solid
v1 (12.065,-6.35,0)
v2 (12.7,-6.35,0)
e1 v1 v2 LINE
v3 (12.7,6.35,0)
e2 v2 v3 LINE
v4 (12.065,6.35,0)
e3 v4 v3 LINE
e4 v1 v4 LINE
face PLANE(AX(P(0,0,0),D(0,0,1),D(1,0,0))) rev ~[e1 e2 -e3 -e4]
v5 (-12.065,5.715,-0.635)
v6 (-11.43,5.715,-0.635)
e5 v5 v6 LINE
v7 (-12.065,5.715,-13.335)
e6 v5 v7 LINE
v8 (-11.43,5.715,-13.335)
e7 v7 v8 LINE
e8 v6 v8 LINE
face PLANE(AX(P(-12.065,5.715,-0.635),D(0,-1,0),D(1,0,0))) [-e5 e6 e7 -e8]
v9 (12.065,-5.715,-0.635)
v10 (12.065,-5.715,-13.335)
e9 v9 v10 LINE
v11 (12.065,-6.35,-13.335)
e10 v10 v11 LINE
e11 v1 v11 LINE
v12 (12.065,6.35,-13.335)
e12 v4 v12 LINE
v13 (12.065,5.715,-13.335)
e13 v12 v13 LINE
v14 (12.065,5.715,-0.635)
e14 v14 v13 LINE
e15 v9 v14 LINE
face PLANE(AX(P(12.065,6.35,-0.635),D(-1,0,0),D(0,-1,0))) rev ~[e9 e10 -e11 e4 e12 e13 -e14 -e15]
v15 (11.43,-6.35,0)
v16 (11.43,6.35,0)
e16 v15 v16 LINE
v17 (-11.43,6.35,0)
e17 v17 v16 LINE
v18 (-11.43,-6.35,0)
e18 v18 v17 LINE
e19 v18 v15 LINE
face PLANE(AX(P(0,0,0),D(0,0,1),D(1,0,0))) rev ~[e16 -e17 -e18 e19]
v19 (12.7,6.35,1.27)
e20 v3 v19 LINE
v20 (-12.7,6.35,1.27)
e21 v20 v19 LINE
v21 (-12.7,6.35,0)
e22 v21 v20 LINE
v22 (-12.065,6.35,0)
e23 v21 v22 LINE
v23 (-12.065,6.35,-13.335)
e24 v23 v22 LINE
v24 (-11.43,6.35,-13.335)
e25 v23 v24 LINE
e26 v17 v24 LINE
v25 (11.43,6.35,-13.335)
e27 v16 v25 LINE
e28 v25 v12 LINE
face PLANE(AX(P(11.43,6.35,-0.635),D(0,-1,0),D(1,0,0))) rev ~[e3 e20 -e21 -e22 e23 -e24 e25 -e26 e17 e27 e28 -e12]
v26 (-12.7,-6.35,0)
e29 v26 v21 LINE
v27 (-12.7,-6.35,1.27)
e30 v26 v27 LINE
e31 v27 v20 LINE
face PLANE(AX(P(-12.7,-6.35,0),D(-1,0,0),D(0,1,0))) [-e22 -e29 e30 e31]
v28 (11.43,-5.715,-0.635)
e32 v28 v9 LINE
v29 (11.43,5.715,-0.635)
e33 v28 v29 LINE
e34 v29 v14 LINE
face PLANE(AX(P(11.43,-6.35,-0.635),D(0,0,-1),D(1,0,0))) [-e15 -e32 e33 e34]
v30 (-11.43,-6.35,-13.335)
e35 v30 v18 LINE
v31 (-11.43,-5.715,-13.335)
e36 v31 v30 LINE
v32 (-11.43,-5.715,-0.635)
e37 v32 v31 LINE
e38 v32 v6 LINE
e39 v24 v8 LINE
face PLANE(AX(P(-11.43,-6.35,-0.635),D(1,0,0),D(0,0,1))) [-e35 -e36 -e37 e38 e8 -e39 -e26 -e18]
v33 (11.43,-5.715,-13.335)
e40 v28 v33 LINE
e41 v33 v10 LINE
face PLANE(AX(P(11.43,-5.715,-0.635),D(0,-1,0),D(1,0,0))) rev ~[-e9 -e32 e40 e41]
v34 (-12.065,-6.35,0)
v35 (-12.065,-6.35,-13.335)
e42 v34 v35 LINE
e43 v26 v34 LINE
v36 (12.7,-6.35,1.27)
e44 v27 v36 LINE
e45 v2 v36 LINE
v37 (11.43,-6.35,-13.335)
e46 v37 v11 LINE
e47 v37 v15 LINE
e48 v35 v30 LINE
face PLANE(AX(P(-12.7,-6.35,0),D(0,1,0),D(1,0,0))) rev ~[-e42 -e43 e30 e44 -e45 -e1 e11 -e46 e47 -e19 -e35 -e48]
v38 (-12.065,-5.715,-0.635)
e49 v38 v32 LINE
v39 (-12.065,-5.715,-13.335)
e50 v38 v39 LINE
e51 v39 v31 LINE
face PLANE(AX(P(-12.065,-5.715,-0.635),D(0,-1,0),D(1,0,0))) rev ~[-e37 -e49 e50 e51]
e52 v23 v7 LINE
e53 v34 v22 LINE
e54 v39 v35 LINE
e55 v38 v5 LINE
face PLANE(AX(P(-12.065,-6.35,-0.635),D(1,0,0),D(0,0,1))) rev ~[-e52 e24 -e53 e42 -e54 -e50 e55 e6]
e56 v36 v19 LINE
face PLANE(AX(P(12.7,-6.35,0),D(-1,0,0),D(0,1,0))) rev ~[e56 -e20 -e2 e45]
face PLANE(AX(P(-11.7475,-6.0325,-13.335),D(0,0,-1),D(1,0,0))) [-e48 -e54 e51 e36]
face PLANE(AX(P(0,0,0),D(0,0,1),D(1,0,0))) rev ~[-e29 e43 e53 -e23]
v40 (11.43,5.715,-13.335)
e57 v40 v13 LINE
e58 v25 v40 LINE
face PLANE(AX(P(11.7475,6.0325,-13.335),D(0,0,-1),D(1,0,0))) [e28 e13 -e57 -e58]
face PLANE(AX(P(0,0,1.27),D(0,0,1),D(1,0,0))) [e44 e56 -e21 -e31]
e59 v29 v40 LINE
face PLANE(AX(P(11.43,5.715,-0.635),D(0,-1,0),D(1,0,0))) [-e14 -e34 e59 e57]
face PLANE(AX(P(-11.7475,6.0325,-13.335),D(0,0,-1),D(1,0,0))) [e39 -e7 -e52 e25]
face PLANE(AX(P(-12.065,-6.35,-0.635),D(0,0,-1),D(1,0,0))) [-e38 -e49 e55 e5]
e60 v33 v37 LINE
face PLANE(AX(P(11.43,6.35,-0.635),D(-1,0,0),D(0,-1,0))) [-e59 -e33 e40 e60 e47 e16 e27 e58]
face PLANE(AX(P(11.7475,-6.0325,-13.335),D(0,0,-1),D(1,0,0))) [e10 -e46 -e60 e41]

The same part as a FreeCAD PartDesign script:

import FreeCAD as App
import Part
import Sketcher

V = App.Vector
Q = App.Units.Quantity

doc = App.newDocument("Part")
body = doc.addObject("PartDesign::Body", "Body")

sketch1 = body.newObject("Sketcher::SketchObject", "Sketch")
sketch1.AttachmentSupport = (doc.getObject("XY_Plane"), [""])
sketch1.MapMode = "FlatFace"
sketch1.addGeometry([
    Part.LineSegment(V(-13, 6, 0), V(-13, -6, 0)),
    Part.LineSegment(V(-13, -6, 0), V(13, -6, 0)),
    Part.LineSegment(V(13, -6, 0), V(13, 6, 0)),
    Part.LineSegment(V(13, 6, 0), V(-13, 6, 0)),
], False)
sketch1.addConstraint([
    Sketcher.Constraint("Coincident", 0, 2, 1, 1),
    Sketcher.Constraint("Coincident", 1, 2, 2, 1),
    Sketcher.Constraint("Coincident", 2, 2, 3, 1),
    Sketcher.Constraint("Coincident", 3, 2, 0, 1),
    Sketcher.Constraint("Vertical", 0),
    Sketcher.Constraint("Horizontal", 1),
    Sketcher.Constraint("Vertical", 2),
    Sketcher.Constraint("Horizontal", 3),
    Sketcher.Constraint("Symmetric", 0, 2, 2, 2, -1, 1),
    Sketcher.Constraint("DistanceX", 1, 1, 1, 2, Q("1 in")),
    Sketcher.Constraint("DistanceY", 0, 2, 0, 1, Q("0.5 in")),
])
pad1 = body.newObject("PartDesign::Pad", "Pad")
pad1.Profile = sketch1
pad1.Length = Q("0.05 in")

sketch2 = body.newObject("Sketcher::SketchObject", "Sketch001")
sketch2.AttachmentSupport = (doc.getObject("XZ_Plane"), [""])
sketch2.MapMode = "FlatFace"
sketch2.AttachmentOffset = App.Placement(V(0, 0, 0.25 * 25.4), App.Rotation())
sketch2.addGeometry([
    Part.LineSegment(V(-12.1, 0, 0), V(-12.1, -0.6, 0)),
    Part.LineSegment(V(-12.1, -0.6, 0), V(-11.4, -0.6, 0)),
    Part.LineSegment(V(-11.4, -0.6, 0), V(-11.4, 0, 0)),
    Part.LineSegment(V(-11.4, 0, 0), V(-12.1, 0, 0)),
    Part.LineSegment(V(11.4, 0, 0), V(11.4, -0.6, 0)),
    Part.LineSegment(V(11.4, -0.6, 0), V(12.1, -0.6, 0)),
    Part.LineSegment(V(12.1, -0.6, 0), V(12.1, 0, 0)),
    Part.LineSegment(V(12.1, 0, 0), V(11.4, 0, 0)),
], False)
sketch2.addConstraint([
    Sketcher.Constraint("Coincident", 0, 2, 1, 1),
    Sketcher.Constraint("Coincident", 1, 2, 2, 1),
    Sketcher.Constraint("Coincident", 2, 2, 3, 1),
    Sketcher.Constraint("Coincident", 3, 2, 0, 1),
    Sketcher.Constraint("Coincident", 4, 2, 5, 1),
    Sketcher.Constraint("Coincident", 5, 2, 6, 1),
    Sketcher.Constraint("Coincident", 6, 2, 7, 1),
    Sketcher.Constraint("Coincident", 7, 2, 4, 1),
    Sketcher.Constraint("Vertical", 0),
    Sketcher.Constraint("Horizontal", 1),
    Sketcher.Constraint("Vertical", 2),
    Sketcher.Constraint("Horizontal", 3),
    Sketcher.Constraint("Vertical", 4),
    Sketcher.Constraint("Horizontal", 5),
    Sketcher.Constraint("Vertical", 6),
    Sketcher.Constraint("Horizontal", 7),
    Sketcher.Constraint("Symmetric", 3, 2, 6, 2, -1, 1),
    Sketcher.Constraint("Symmetric", 1, 2, 4, 2, -2),
    Sketcher.Constraint("PointOnObject", 2, 2, -1),
    Sketcher.Constraint("Equal", 7, 0),
    Sketcher.Constraint("DistanceX", 1, 2, 4, 2, Q("0.9 in")),
    Sketcher.Constraint("DistanceX", 1, 1, 1, 2, Q("0.025 in")),
])
pad2 = body.newObject("PartDesign::Pad", "Pad001")
pad2.Profile = sketch2
pad2.Length = Q("0.5 in")
pad2.Reversed = True

sketch3 = body.newObject("Sketcher::SketchObject", "Sketch002")
sketch3.AttachmentSupport = (doc.getObject("XY_Plane"), [""])
sketch3.MapMode = "FlatFace"
sketch3.AttachmentOffset = App.Placement(V(0, 0, -0.025 * 25.4), App.Rotation())
sketch3.addGeometry([
    Part.LineSegment(V(11.4, 5.7, 0), V(11.4, 6.3, 0)),
    Part.LineSegment(V(11.4, 6.3, 0), V(12.1, 6.3, 0)),
    Part.LineSegment(V(12.1, 6.3, 0), V(12.1, 5.7, 0)),
    Part.LineSegment(V(12.1, 5.7, 0), V(11.4, 5.7, 0)),
    Part.LineSegment(V(11.4, -6.3, 0), V(11.4, -5.7, 0)),
    Part.LineSegment(V(11.4, -5.7, 0), V(12.1, -5.7, 0)),
    Part.LineSegment(V(12.1, -5.7, 0), V(12.1, -6.3, 0)),
    Part.LineSegment(V(12.1, -6.3, 0), V(11.4, -6.3, 0)),
    Part.LineSegment(V(-12.1, 5.7, 0), V(-12.1, 6.3, 0)),
    Part.LineSegment(V(-12.1, 6.3, 0), V(-11.4, 6.3, 0)),
    Part.LineSegment(V(-11.4, 6.3, 0), V(-11.4, 5.7, 0)),
    Part.LineSegment(V(-11.4, 5.7, 0), V(-12.1, 5.7, 0)),
    Part.LineSegment(V(-12.1, -6.3, 0), V(-12.1, -5.7, 0)),
    Part.LineSegment(V(-12.1, -5.7, 0), V(-11.4, -5.7, 0)),
    Part.LineSegment(V(-11.4, -5.7, 0), V(-11.4, -6.3, 0)),
    Part.LineSegment(V(-11.4, -6.3, 0), V(-12.1, -6.3, 0)),
], False)
sketch3.addConstraint([
    Sketcher.Constraint("Coincident", 0, 2, 1, 1),
    Sketcher.Constraint("Coincident", 1, 2, 2, 1),
    Sketcher.Constraint("Coincident", 2, 2, 3, 1),
    Sketcher.Constraint("Coincident", 3, 2, 0, 1),
    Sketcher.Constraint("Coincident", 4, 2, 5, 1),
    Sketcher.Constraint("Coincident", 5, 2, 6, 1),
    Sketcher.Constraint("Coincident", 6, 2, 7, 1),
    Sketcher.Constraint("Coincident", 7, 2, 4, 1),
    Sketcher.Constraint("Coincident", 8, 2, 9, 1),
    Sketcher.Constraint("Coincident", 9, 2, 10, 1),
    Sketcher.Constraint("Coincident", 10, 2, 11, 1),
    Sketcher.Constraint("Coincident", 11, 2, 8, 1),
    Sketcher.Constraint("Coincident", 12, 2, 13, 1),
    Sketcher.Constraint("Coincident", 13, 2, 14, 1),
    Sketcher.Constraint("Coincident", 14, 2, 15, 1),
    Sketcher.Constraint("Coincident", 15, 2, 12, 1),
    Sketcher.Constraint("Vertical", 0),
    Sketcher.Constraint("Horizontal", 1),
    Sketcher.Constraint("Vertical", 2),
    Sketcher.Constraint("Horizontal", 3),
    Sketcher.Constraint("Vertical", 4),
    Sketcher.Constraint("Horizontal", 5),
    Sketcher.Constraint("Vertical", 6),
    Sketcher.Constraint("Horizontal", 7),
    Sketcher.Constraint("Vertical", 8),
    Sketcher.Constraint("Horizontal", 9),
    Sketcher.Constraint("Vertical", 10),
    Sketcher.Constraint("Horizontal", 11),
    Sketcher.Constraint("Vertical", 12),
    Sketcher.Constraint("Horizontal", 13),
    Sketcher.Constraint("Vertical", 14),
    Sketcher.Constraint("Horizontal", 15),
    Sketcher.Constraint("Symmetric", 6, 2, 8, 2, -1, 1),
    Sketcher.Constraint("Symmetric", 4, 2, 10, 2, -1, 1),
    Sketcher.Constraint("Symmetric", 2, 2, 12, 2, -1, 1),
    Sketcher.Constraint("Symmetric", 0, 2, 14, 2, -1, 1),
    Sketcher.Constraint("Symmetric", 1, 2, 8, 2, -2),
    Sketcher.Constraint("Symmetric", 3, 2, 10, 2, -2),
    Sketcher.Constraint("Equal", 15, 0),
    Sketcher.Constraint("DistanceY", 6, 2, 1, 2, Q("0.5 in")),
    Sketcher.Constraint("DistanceX", 9, 2, 0, 2, Q("0.9 in")),
    Sketcher.Constraint("DistanceX", 1, 1, 1, 2, Q("0.025 in")),
])
pad3 = body.newObject("PartDesign::Pad", "Pad002")
pad3.Profile = sketch3
pad3.Length = Q("0.5 in")
pad3.Reversed = True

doc.recompute()
